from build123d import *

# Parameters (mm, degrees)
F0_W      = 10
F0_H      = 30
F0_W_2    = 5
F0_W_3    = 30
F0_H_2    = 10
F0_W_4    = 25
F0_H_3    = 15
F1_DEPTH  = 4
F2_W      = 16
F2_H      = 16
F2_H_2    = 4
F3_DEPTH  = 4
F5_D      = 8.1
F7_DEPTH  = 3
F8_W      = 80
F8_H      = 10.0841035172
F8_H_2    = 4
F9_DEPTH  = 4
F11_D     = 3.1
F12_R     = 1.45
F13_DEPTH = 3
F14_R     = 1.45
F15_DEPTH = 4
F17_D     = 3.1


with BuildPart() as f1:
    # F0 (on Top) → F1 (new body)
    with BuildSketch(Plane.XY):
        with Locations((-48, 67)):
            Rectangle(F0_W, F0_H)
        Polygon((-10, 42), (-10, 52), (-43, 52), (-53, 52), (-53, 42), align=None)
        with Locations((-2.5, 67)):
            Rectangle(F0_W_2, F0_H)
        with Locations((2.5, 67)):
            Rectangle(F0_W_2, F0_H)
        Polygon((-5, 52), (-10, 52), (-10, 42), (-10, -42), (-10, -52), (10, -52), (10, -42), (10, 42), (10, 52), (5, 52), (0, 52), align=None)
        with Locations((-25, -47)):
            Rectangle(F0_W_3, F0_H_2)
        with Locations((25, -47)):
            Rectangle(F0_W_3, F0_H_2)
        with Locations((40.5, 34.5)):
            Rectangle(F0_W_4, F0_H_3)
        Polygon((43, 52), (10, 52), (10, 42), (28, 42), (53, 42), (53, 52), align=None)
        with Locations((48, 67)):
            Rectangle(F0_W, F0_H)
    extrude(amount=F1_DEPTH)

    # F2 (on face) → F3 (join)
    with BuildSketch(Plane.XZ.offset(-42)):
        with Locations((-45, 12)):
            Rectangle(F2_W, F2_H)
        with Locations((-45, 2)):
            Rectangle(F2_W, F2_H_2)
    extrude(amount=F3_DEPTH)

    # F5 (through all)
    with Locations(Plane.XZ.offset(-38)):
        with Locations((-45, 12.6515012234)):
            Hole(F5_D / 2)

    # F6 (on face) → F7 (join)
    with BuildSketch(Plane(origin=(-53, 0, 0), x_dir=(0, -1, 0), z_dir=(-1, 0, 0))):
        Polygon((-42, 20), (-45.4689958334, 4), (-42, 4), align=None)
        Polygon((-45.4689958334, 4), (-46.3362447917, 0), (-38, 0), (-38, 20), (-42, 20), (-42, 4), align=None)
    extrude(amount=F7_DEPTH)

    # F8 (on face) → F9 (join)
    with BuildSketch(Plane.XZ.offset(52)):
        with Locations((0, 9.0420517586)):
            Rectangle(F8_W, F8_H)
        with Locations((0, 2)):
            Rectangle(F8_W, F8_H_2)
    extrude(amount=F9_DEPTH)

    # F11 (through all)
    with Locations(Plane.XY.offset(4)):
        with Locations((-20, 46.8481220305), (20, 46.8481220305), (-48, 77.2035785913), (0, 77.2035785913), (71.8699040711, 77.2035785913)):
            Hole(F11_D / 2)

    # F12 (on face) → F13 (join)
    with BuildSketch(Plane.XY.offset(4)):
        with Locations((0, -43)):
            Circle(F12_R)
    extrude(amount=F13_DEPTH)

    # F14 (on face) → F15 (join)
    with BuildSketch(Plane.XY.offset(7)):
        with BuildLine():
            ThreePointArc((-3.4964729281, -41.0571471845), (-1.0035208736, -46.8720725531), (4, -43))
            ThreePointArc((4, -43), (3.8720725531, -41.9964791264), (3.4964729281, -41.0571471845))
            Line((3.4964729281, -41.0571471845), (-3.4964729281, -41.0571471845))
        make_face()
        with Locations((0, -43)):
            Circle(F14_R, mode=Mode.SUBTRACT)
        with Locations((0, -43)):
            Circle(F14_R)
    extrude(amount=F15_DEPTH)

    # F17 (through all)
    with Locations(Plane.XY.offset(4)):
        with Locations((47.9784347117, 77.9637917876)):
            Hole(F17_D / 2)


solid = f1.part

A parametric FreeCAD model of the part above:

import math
import FreeCAD as App
import Part
import Sketcher
from FreeCAD import Vector
Q = App.Units.Quantity

doc = App.newDocument("Part")
params = doc.addObject("Spreadsheet::Sheet", "Params")
for row, (alias, value) in enumerate([
    ("sketch1_width", "10 mm"),
    ("sketch1_width2", "43 mm"),
    ("sketch1_width3", "30 mm"),
    ("sketch1_width4", "80 mm"),
    ("sketch1_width5", "18 mm"),
    ("pad1_length", "4 mm"),
    ("sketch2_width", "16 mm"),
    ("sketch2_height", "20 mm"),
    ("pad2_length", "4 mm"),
    ("sketch3_diameter", "8.1 mm"),
    ("hole_diameter", "8.1 mm"),
    ("sketch4_width", "4 mm"),
    ("sketch4_height", "20 mm"),
    ("pad3_length", "3 mm"),
    ("sketch5_width", "80 mm"),
    ("pad4_length", "4 mm"),
    ("sketch6_diameter", "3.1 mm"),
    ("hole2_diameter", "3.1 mm"),
    ("sketch7_diameter", "2.9 mm"),
    ("pad5_length", "3 mm"),
    ("sketch8_radius", "4 mm"),
    ("pad6_length", "4 mm"),
    ("sketch9_diameter", "3.1 mm"),
    ("hole3_diameter", "3.1 mm"),
], start=1):
    params.set(f"A{row}", alias)
    params.set(f"B{row}", "=" + value)
    params.setAlias(f"B{row}", alias)

body = doc.addObject("PartDesign::Body", "Body")

sketch1 = body.newObject("Sketcher::SketchObject", "Sketch")
sketch1.AttachmentSupport = (doc.getObject("XY_Plane"), [""])
sketch1.MapMode = "FlatFace"
sketch1.addGeometry([
    Part.LineSegment(Vector(-43, 82, 0), Vector(-53, 82, 0)),
    Part.LineSegment(Vector(-53, 82, 0), Vector(-53, 42, 0)),
    Part.LineSegment(Vector(-53, 42, 0), Vector(-10, 42, 0)),
    Part.LineSegment(Vector(-10, 42, 0), Vector(-10, -42, 0)),
    Part.LineSegment(Vector(-10, -42, 0), Vector(-40, -42, 0)),
    Part.LineSegment(Vector(-40, -42, 0), Vector(-40, -52, 0)),
    Part.LineSegment(Vector(-40, -52, 0), Vector(40, -52, 0)),
    Part.LineSegment(Vector(40, -52, 0), Vector(40, -42, 0)),
    Part.LineSegment(Vector(40, -42, 0), Vector(10, -42, 0)),
    Part.LineSegment(Vector(10, -42, 0), Vector(10, 42, 0)),
    Part.LineSegment(Vector(10, 42, 0), Vector(28, 42, 0)),
    Part.LineSegment(Vector(28, 42, 0), Vector(28, 27, 0)),
    Part.LineSegment(Vector(28, 27, 0), Vector(53, 27, 0)),
    Part.LineSegment(Vector(53, 27, 0), Vector(53, 82, 0)),
    Part.LineSegment(Vector(53, 82, 0), Vector(43, 82, 0)),
    Part.LineSegment(Vector(43, 82, 0), Vector(43, 52, 0)),
    Part.LineSegment(Vector(43, 52, 0), Vector(5, 52, 0)),
    Part.LineSegment(Vector(5, 52, 0), Vector(5, 82, 0)),
    Part.LineSegment(Vector(5, 82, 0), Vector(-5, 82, 0)),
    Part.LineSegment(Vector(-5, 82, 0), Vector(-5, 52, 0)),
    Part.LineSegment(Vector(-5, 52, 0), Vector(-43, 52, 0)),
    Part.LineSegment(Vector(-43, 52, 0), Vector(-43, 82, 0)),
], False)
sketch1.addConstraint([
    Sketcher.Constraint("Coincident", 0, 2, 1, 1),
    Sketcher.Constraint("Coincident", 1, 2, 2, 1),
    Sketcher.Constraint("Coincident", 2, 2, 3, 1),
    Sketcher.Constraint("Coincident", 3, 2, 4, 1),
    Sketcher.Constraint("Coincident", 4, 2, 5, 1),
    Sketcher.Constraint("Coincident", 5, 2, 6, 1),
    Sketcher.Constraint("Coincident", 6, 2, 7, 1),
    Sketcher.Constraint("Coincident", 7, 2, 8, 1),
    Sketcher.Constraint("Coincident", 8, 2, 9, 1),
    Sketcher.Constraint("Coincident", 9, 2, 10, 1),
    Sketcher.Constraint("Coincident", 10, 2, 11, 1),
    Sketcher.Constraint("Coincident", 11, 2, 12, 1),
    Sketcher.Constraint("Coincident", 12, 2, 13, 1),
    Sketcher.Constraint("Coincident", 13, 2, 14, 1),
    Sketcher.Constraint("Coincident", 14, 2, 15, 1),
    Sketcher.Constraint("Coincident", 15, 2, 16, 1),
    Sketcher.Constraint("Coincident", 16, 2, 17, 1),
    Sketcher.Constraint("Coincident", 17, 2, 18, 1),
    Sketcher.Constraint("Coincident", 18, 2, 19, 1),
    Sketcher.Constraint("Coincident", 19, 2, 20, 1),
    Sketcher.Constraint("Coincident", 20, 2, 21, 1),
    Sketcher.Constraint("Coincident", 21, 2, 0, 1),
    Sketcher.Constraint("Horizontal", 0),
    Sketcher.Constraint("Vertical", 1),
    Sketcher.Constraint("Horizontal", 2),
    Sketcher.Constraint("Vertical", 3),
    Sketcher.Constraint("Horizontal", 4),
    Sketcher.Constraint("Vertical", 5),
    Sketcher.Constraint("Horizontal", 6),
    Sketcher.Constraint("Vertical", 7),
    Sketcher.Constraint("Horizontal", 8),
    Sketcher.Constraint("Vertical", 9),
    Sketcher.Constraint("Horizontal", 10),
    Sketcher.Constraint("Vertical", 11),
    Sketcher.Constraint("Horizontal", 12),
    Sketcher.Constraint("Vertical", 13),
    Sketcher.Constraint("Horizontal", 14),
    Sketcher.Constraint("Vertical", 15),
    Sketcher.Constraint("Horizontal", 16),
    Sketcher.Constraint("Vertical", 17),
    Sketcher.Constraint("Horizontal", 18),
    Sketcher.Constraint("Vertical", 19),
    Sketcher.Constraint("Horizontal", 20),
    Sketcher.Constraint("Vertical", 21),
    Sketcher.Constraint("Symmetric", 2, 2, 8, 2, -1, 1),
    Sketcher.Constraint("Symmetric", 4, 2, 7, 2, -2),
    Sketcher.Constraint("Symmetric", 0, 2, 13, 2, -2),
    Sketcher.Constraint("Symmetric", 16, 2, 19, 2, -2),
    Sketcher.Constraint("Horizontal", 2, 2, 9, 2),
    Sketcher.Constraint("Horizontal", 14, 2, 17, 2),
    Sketcher.Constraint("Equal", 0, 14),
    Sketcher.Constraint("Equal", 14, 18),
    Sketcher.Constraint("Equal", 18, 5),
    Sketcher.Constraint("Equal", 8, 15),
    Sketcher.Constraint("DistanceX", 0, 2, 0, 1, Q("10 mm")),
    Sketcher.Constraint("DistanceX", 2, 1, 2, 2, Q("43 mm")),
    Sketcher.Constraint("DistanceX", 4, 2, 4, 1, Q("30 mm")),
    Sketcher.Constraint("DistanceX", 6, 1, 6, 2, Q("80 mm")),
    Sketcher.Constraint("DistanceX", 10, 1, 10, 2, Q("18 mm")),
    Sketcher.Constraint("DistanceY", 1, 2, 1, 1, Q("40 mm")),
    Sketcher.Constraint("DistanceY", 3, 2, 3, 1, Q("84 mm")),
    Sketcher.Constraint("DistanceY", 11, 2, 11, 1, Q("15 mm")),
])
sketch1.setExpression("Constraints[54]", "Params.sketch1_width")
sketch1.setExpression("Constraints[55]", "Params.sketch1_width2")
sketch1.setExpression("Constraints[56]", "Params.sketch1_width3")
sketch1.setExpression("Constraints[57]", "Params.sketch1_width4")
sketch1.setExpression("Constraints[58]", "Params.sketch1_width5")
pad1 = body.newObject("PartDesign::Pad", "Pad")
pad1.Profile = sketch1
pad1.setExpression("Length", "Params.pad1_length")

sketch2 = body.newObject("Sketcher::SketchObject", "Sketch001")
sketch2.AttachmentSupport = (doc.getObject("XZ_Plane"), [""])
sketch2.MapMode = "FlatFace"
sketch2.AttachmentOffset = App.Placement(Vector(0, 0, -42), App.Rotation())
sketch2.addGeometry([
    Part.LineSegment(Vector(-53, 20, 0), Vector(-53, 0, 0)),
    Part.LineSegment(Vector(-53, 0, 0), Vector(-37, 0, 0)),
    Part.LineSegment(Vector(-37, 0, 0), Vector(-37, 20, 0)),
    Part.LineSegment(Vector(-37, 20, 0), Vector(-53, 20, 0)),
], False)
sketch2.addConstraint([
    Sketcher.Constraint("Coincident", 0, 2, 1, 1),
    Sketcher.Constraint("Coincident", 1, 2, 2, 1),
    Sketcher.Constraint("Coincident", 2, 2, 3, 1),
    Sketcher.Constraint("Coincident", 3, 2, 0, 1),
    Sketcher.Constraint("Vertical", 0),
    Sketcher.Constraint("Horizontal", 1),
    Sketcher.Constraint("Vertical", 2),
    Sketcher.Constraint("Horizontal", 3),
    Sketcher.Constraint("PointOnObject", 0, 2, -1),
    Sketcher.Constraint("DistanceX", 1, 1, 1, 2, Q("16 mm")),
    Sketcher.Constraint("DistanceY", 0, 2, 0, 1, Q("20 mm")),
    Sketcher.Constraint("DistanceX", 0, 2, -1, 1, Q("53 mm")),
])
sketch2.setExpression("Constraints[9]", "Params.sketch2_width")
sketch2.setExpression("Constraints[10]", "Params.sketch2_height")
pad2 = body.newObject("PartDesign::Pad", "Pad001")
pad2.Profile = sketch2
pad2.setExpression("Length", "Params.pad2_length")

sketch3 = body.newObject("Sketcher::SketchObject", "Sketch002")
sketch3.AttachmentSupport = (doc.getObject("XZ_Plane"), [""])
sketch3.MapMode = "FlatFace"
sketch3.AttachmentOffset = App.Placement(Vector(0, 0, -38), App.Rotation())
sketch3.addGeometry(Part.Circle(Vector(-45, 12.7, 0), Vector(0, 0, 1), 4), False)
sketch3.addConstraint([
    Sketcher.Constraint("Diameter", 0, Q("8.1 mm")),
    Sketcher.Constraint("DistanceX", 0, 3, -1, 1, Q("45 mm")),
    Sketcher.Constraint("DistanceY", -1, 1, 0, 3, Q("12.651501 mm")),
])
sketch3.setExpression("Constraints[0]", "Params.sketch3_diameter")
doc.recompute()
hole = body.newObject("PartDesign::Hole", "Hole")
hole.Profile = sketch3
hole.ThreadType = "None"
hole.setExpression("Diameter", "Params.hole_diameter")
hole.DepthType = "ThroughAll"

sketch4 = body.newObject("Sketcher::SketchObject", "Sketch003")
sketch4.AttachmentSupport = (doc.getObject("YZ_Plane"), [""])
sketch4.MapMode = "FlatFace"
sketch4.AttachmentOffset = App.Placement(Vector(0, 0, -53), App.Rotation())
sketch4.addGeometry([
    Part.LineSegment(Vector(42, 20, 0), Vector(45.5, 4, 0)),
    Part.LineSegment(Vector(45.5, 4, 0), Vector(46.3, 0, 0)),
    Part.LineSegment(Vector(46.3, 0, 0), Vector(38, 0, 0)),
    Part.LineSegment(Vector(38, 0, 0), Vector(38, 20, 0)),
    Part.LineSegment(Vector(38, 20, 0), Vector(42, 20, 0)),
], False)
sketch4.addConstraint([
    Sketcher.Constraint("Coincident", 0, 2, 1, 1),
    Sketcher.Constraint("Coincident", 1, 2, 2, 1),
    Sketcher.Constraint("Coincident", 2, 2, 3, 1),
    Sketcher.Constraint("Coincident", 3, 2, 4, 1),
    Sketcher.Constraint("Coincident", 4, 2, 0, 1),
    Sketcher.Constraint("Horizontal", 2),
    Sketcher.Constraint("Vertical", 3),
    Sketcher.Constraint("Horizontal", 4),
    Sketcher.Constraint("PointOnObject", 1, 2, -1),
    Sketcher.Constraint("Parallel", 0, 1),
    Sketcher.Constraint("DistanceX", 4, 1, 4, 2, Q("4 mm")),
    Sketcher.Constraint("DistanceY", 3, 1, 3, 2, Q("20 mm")),
    Sketcher.Constraint("DistanceY", -1, 1, 0, 2, Q("4 mm")),
    Sketcher.Constraint("DistanceX", -1, 1, 2, 2, Q("38 mm")),
    Sketcher.Constraint("Distance", 0, Q("16.371742 mm")),
])
sketch4.setExpression("Constraints[10]", "Params.sketch4_width")
sketch4.setExpression("Constraints[11]", "Params.sketch4_height")
pad3 = body.newObject("PartDesign::Pad", "Pad002")
pad3.Profile = sketch4
pad3.setExpression("Length", "Params.pad3_length")
pad3.Reversed = True

sketch5 = body.newObject("Sketcher::SketchObject", "Sketch004")
sketch5.AttachmentSupport = (doc.getObject("XZ_Plane"), [""])
sketch5.MapMode = "FlatFace"
sketch5.AttachmentOffset = App.Placement(Vector(0, 0, 52), App.Rotation())
sketch5.addGeometry([
    Part.LineSegment(Vector(-40, 14, 0), Vector(-40, 0, 0)),
    Part.LineSegment(Vector(-40, 0, 0), Vector(40, 0, 0)),
    Part.LineSegment(Vector(40, 0, 0), Vector(40, 14, 0)),
    Part.LineSegment(Vector(40, 14, 0), Vector(-40, 14, 0)),
], False)
sketch5.addConstraint([
    Sketcher.Constraint("Coincident", 0, 2, 1, 1),
    Sketcher.Constraint("Coincident", 1, 2, 2, 1),
    Sketcher.Constraint("Coincident", 2, 2, 3, 1),
    Sketcher.Constraint("Coincident", 3, 2, 0, 1),
    Sketcher.Constraint("Vertical", 0),
    Sketcher.Constraint("Horizontal", 1),
    Sketcher.Constraint("Vertical", 2),
    Sketcher.Constraint("Horizontal", 3),
    Sketcher.Constraint("Symmetric", 0, 2, 1, 2, -1, 1),
    Sketcher.Constraint("DistanceX", 1, 1, 1, 2, Q("80 mm")),
    Sketcher.Constraint("DistanceY", 0, 2, 0, 1, Q("14.084104 mm")),
])
sketch5.setExpression("Constraints[9]", "Params.sketch5_width")
pad4 = body.newObject("PartDesign::Pad", "Pad003")
pad4.Profile = sketch5
pad4.setExpression("Length", "Params.pad4_length")

sketch6 = body.newObject("Sketcher::SketchObject", "Sketch005")
sketch6.AttachmentSupport = (doc.getObject("XY_Plane"), [""])
sketch6.MapMode = "FlatFace"
sketch6.AttachmentOffset = App.Placement(Vector(0, 0, 4), App.Rotation())
sketch6.addGeometry([
    Part.Circle(Vector(-20, 46.8, 0), Vector(0, 0, 1), 1.6),
    Part.Circle(Vector(20, 46.8, 0), Vector(0, 0, 1), 1.6),
    Part.Circle(Vector(-48, 77.2, 0), Vector(0, 0, 1), 1.6),
    Part.Circle(Vector(0, 77.2, 0), Vector(0, 0, 1), 1.6),
    Part.Circle(Vector(71.9, 77.2, 0), Vector(0, 0, 1), 1.6),
], False)
sketch6.addConstraint([
    Sketcher.Constraint("Equal", 0, 1),
    Sketcher.Constraint("Equal", 1, 2),
    Sketcher.Constraint("Equal", 2, 3),
    Sketcher.Constraint("Equal", 3, 4),
    Sketcher.Constraint("Symmetric", 0, 3, 1, 3, -2),
    Sketcher.Constraint("PointOnObject", 3, 3, -2),
    Sketcher.Constraint("Horizontal", 2, 3, 3, 3),
    Sketcher.Constraint("Horizontal", 3, 3, 4, 3),
    Sketcher.Constraint("Diameter", 0, Q("3.1 mm")),
    Sketcher.Constraint("DistanceX", 0, 3, -1, 1, Q("20 mm")),
    Sketcher.Constraint("DistanceX", 2, 3, -1, 1, Q("48 mm")),
    Sketcher.Constraint("DistanceY", -1, 1, 2, 3, Q("77.203579 mm")),
    Sketcher.Constraint("DistanceY", -1, 1, 0, 3, Q("46.848122 mm")),
    Sketcher.Constraint("DistanceX", -1, 1, 4, 3, Q("71.869904 mm")),
])
sketch6.setExpression("Constraints[8]", "Params.sketch6_diameter")
doc.recompute()
hole2 = body.newObject("PartDesign::Hole", "Hole001")
hole2.Profile = sketch6
hole2.ThreadType = "None"
hole2.setExpression("Diameter", "Params.hole2_diameter")
hole2.DepthType = "ThroughAll"

sketch7 = body.newObject("Sketcher::SketchObject", "Sketch006")
sketch7.AttachmentSupport = (doc.getObject("XY_Plane"), [""])
sketch7.MapMode = "FlatFace"
sketch7.AttachmentOffset = App.Placement(Vector(0, 0, 4), App.Rotation())
sketch7.addGeometry(Part.Circle(Vector(0, -43, 0), Vector(0, 0, 1), 1.4), False)
sketch7.addConstraint([
    Sketcher.Constraint("PointOnObject", 0, 3, -2),
    Sketcher.Constraint("Diameter", 0, Q("2.9 mm")),
    Sketcher.Constraint("DistanceY", 0, 3, -1, 1, Q("43 mm")),
])
sketch7.setExpression("Constraints[1]", "Params.sketch7_diameter")
pad5 = body.newObject("PartDesign::Pad", "Pad004")
pad5.Profile = sketch7
pad5.setExpression("Length", "Params.pad5_length")

sketch8 = body.newObject("Sketcher::SketchObject", "Sketch007")
sketch8.AttachmentSupport = (doc.getObject("XY_Plane"), [""])
sketch8.MapMode = "FlatFace"
sketch8.AttachmentOffset = App.Placement(Vector(0, 0, 7), App.Rotation())
sketch8.addGeometry([
    Part.ArcOfCircle(Part.Circle(Vector(0, -43, 0), Vector(0, 0, 1), 4), math.radians(151), math.radians(360)),
    Part.ArcOfCircle(Part.Circle(Vector(0, -43, 0), Vector(0, 0, 1), 4), math.radians(0), math.radians(29)),
    Part.LineSegment(Vector(3.5, -41.1, 0), Vector(-3.5, -41.1, 0)),
], False)
sketch8.addConstraint([
    Sketcher.Constraint("Tangent", 0, 2, 1, 1),
    Sketcher.Constraint("Coincident", 1, 2, 2, 1),
    Sketcher.Constraint("Coincident", 2, 2, 0, 1),
    Sketcher.Constraint("Horizontal", 2),
    Sketcher.Constraint("Equal", 0, 1),
    Sketcher.Constraint("PointOnObject", 0, 3, -2),
    Sketcher.Constraint("Horizontal", 1, 3, 0, 2),
    Sketcher.Constraint("Radius", 0, Q("4 mm")),
    Sketcher.Constraint("DistanceY", 0, 3, -1, 1, Q("43 mm")),
    Sketcher.Constraint("DistanceX", 2, 2, 2, 1, Q("6.992946 mm")),
])
sketch8.setExpression("Constraints[7]", "Params.sketch8_radius")
pad6 = body.newObject("PartDesign::Pad", "Pad005")
pad6.Profile = sketch8
pad6.setExpression("Length", "Params.pad6_length")

sketch9 = body.newObject("Sketcher::SketchObject", "Sketch008")
sketch9.AttachmentSupport = (doc.getObject("XY_Plane"), [""])
sketch9.MapMode = "FlatFace"
sketch9.AttachmentOffset = App.Placement(Vector(0, 0, 4), App.Rotation())
sketch9.addGeometry(Part.Circle(Vector(48, 78, 0), Vector(0, 0, 1), 1.6), False)
sketch9.addConstraint([
    Sketcher.Constraint("Diameter", 0, Q("3.1 mm")),
    Sketcher.Constraint("DistanceY", -1, 1, 0, 3, Q("77.963792 mm")),
    Sketcher.Constraint("DistanceX", -1, 1, 0, 3, Q("47.978435 mm")),
])
sketch9.setExpression("Constraints[0]", "Params.sketch9_diameter")
doc.recompute()
hole3 = body.newObject("PartDesign::Hole", "Hole002")
hole3.Profile = sketch9
hole3.ThreadType = "None"
hole3.setExpression("Diameter", "Params.hole3_diameter")
hole3.DepthType = "ThroughAll"

doc.recompute()
